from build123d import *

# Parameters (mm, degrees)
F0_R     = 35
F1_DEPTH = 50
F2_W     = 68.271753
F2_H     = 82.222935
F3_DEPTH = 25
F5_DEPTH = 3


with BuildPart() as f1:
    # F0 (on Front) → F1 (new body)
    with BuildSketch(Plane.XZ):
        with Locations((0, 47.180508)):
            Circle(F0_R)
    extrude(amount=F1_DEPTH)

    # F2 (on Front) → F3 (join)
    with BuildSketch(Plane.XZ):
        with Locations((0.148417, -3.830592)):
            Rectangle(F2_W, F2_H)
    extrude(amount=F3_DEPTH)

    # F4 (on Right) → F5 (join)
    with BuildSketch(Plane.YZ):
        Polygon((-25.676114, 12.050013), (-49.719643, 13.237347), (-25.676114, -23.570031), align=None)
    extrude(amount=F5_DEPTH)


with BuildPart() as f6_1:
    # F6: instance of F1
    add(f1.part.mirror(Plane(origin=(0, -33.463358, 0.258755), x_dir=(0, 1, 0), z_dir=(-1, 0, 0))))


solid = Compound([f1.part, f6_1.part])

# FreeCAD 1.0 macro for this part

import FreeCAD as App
import Part
import Sketcher

doc = App.newDocument("Part")
params = doc.addObject("Spreadsheet::Sheet", "Params")
for row, (alias, value) in enumerate([
    ("sketch1_diameter", "70 mm"),
    ("pad1_length", "50 mm"),
    ("pad2_length", "25 mm"),
    ("pad3_length", "3 mm"),
], start=1):
    params.set(f"A{row}", alias)
    params.set(f"B{row}", "=" + value)
    params.setAlias(f"B{row}", alias)

body = doc.addObject("PartDesign::Body", "Body")

sketch1 = doc.addObject("Sketcher::SketchObject", "Sketch")
body.addObject(sketch1)
sketch1.AttachmentSupport = (doc.XZ_Plane, [""])
sketch1.MapMode = "FlatFace"
sketch1.addGeometry(Part.Circle(App.Vector(0, 47.180508, 0), App.Vector(0, 0, 1), 35), False)
sketch1.addConstraint([
    Sketcher.Constraint("PointOnObject", 0, 3, -2),
    Sketcher.Constraint("Diameter", 0, 70.0),
    Sketcher.Constraint("DistanceY", -1, 1, 0, 3, 47.180508),
])
sketch1.setExpression("Constraints[1]", "Params.sketch1_diameter")
pad1 = doc.addObject("PartDesign::Pad", "Pad")
body.addObject(pad1)
pad1.Profile = sketch1
pad1.setExpression("Length", "Params.pad1_length")

sketch2 = doc.addObject("Sketcher::SketchObject", "Sketch001")
body.addObject(sketch2)
sketch2.AttachmentSupport = (doc.XZ_Plane, [""])
sketch2.MapMode = "FlatFace"
sketch2.addGeometry([
    Part.LineSegment(App.Vector(-33.987459, 37.280876, 0), App.Vector(-33.987459, -44.942059, 0)),
    Part.LineSegment(App.Vector(-33.987459, -44.942059, 0), App.Vector(34.284293, -44.942059, 0)),
    Part.LineSegment(App.Vector(34.284293, -44.942059, 0), App.Vector(34.284293, 37.280876, 0)),
    Part.LineSegment(App.Vector(34.284293, 37.280876, 0), App.Vector(-33.987459, 37.280876, 0)),
], False)
sketch2.addConstraint([
    Sketcher.Constraint("Coincident", 0, 2, 1, 1),
    Sketcher.Constraint("Coincident", 1, 2, 2, 1),
    Sketcher.Constraint("Coincident", 2, 2, 3, 1),
    Sketcher.Constraint("Coincident", 3, 2, 0, 1),
    Sketcher.Constraint("Vertical", 0),
    Sketcher.Constraint("Horizontal", 1),
    Sketcher.Constraint("Vertical", 2),
    Sketcher.Constraint("Horizontal", 3),
    Sketcher.Constraint("DistanceX", 1, 1, 1, 2, 68.271753),
    Sketcher.Constraint("DistanceY", 0, 2, 0, 1, 82.222935),
    Sketcher.Constraint("DistanceX", 0, 2, -1, 1, 33.987459),
    Sketcher.Constraint("DistanceY", 0, 2, -1, 1, 44.942059),
])
pad2 = doc.addObject("PartDesign::Pad", "Pad001")
body.addObject(pad2)
pad2.Profile = sketch2
pad2.setExpression("Length", "Params.pad2_length")

sketch3 = doc.addObject("Sketcher::SketchObject", "Sketch002")
body.addObject(sketch3)
sketch3.AttachmentSupport = (doc.YZ_Plane, [""])
sketch3.MapMode = "FlatFace"
sketch3.addGeometry([
    Part.LineSegment(App.Vector(-25.676114, 12.050013, 0), App.Vector(-49.719643, 13.237347, 0)),
    Part.LineSegment(App.Vector(-49.719643, 13.237347, 0), App.Vector(-25.676114, -23.570031, 0)),
    Part.LineSegment(App.Vector(-25.676114, -23.570031, 0), App.Vector(-25.676114, 12.050013, 0)),
], False)
sketch3.addConstraint([
    Sketcher.Constraint("Coincident", 0, 2, 1, 1),
    Sketcher.Constraint("Coincident", 1, 2, 2, 1),
    Sketcher.Constraint("Coincident", 2, 2, 0, 1),
    Sketcher.Constraint("Vertical", 2),
    Sketcher.Constraint("Distance", 0, 24.072828),
    Sketcher.Constraint("DistanceY", 2, 1, 2, 2, 35.620044),
    Sketcher.Constraint("DistanceY", 1, 2, -1, 1, 23.570031),
    Sketcher.Constraint("DistanceX", 0, 2, 1, 2, 24.043529),
    Sketcher.Constraint("DistanceX", 0, 2, -1, 1, 49.719643),
])
pad3 = doc.addObject("PartDesign::Pad", "Pad002")
body.addObject(pad3)
pad3.Profile = sketch3
pad3.setExpression("Length", "Params.pad3_length")
body2 = doc.addObject("PartDesign::Body", "Body001")
doc.recompute()

mirroring = doc.addObject("Part::Mirroring", "Mirroring")
mirroring.Source = body
mirroring.Base = App.Vector(0, -33.463358, 0.258755)
mirroring.Normal = App.Vector(-1, 0, 0)
body2.BaseFeature = mirroring
doc.recompute()
mirroring.Visibility = False

doc.recompute()
